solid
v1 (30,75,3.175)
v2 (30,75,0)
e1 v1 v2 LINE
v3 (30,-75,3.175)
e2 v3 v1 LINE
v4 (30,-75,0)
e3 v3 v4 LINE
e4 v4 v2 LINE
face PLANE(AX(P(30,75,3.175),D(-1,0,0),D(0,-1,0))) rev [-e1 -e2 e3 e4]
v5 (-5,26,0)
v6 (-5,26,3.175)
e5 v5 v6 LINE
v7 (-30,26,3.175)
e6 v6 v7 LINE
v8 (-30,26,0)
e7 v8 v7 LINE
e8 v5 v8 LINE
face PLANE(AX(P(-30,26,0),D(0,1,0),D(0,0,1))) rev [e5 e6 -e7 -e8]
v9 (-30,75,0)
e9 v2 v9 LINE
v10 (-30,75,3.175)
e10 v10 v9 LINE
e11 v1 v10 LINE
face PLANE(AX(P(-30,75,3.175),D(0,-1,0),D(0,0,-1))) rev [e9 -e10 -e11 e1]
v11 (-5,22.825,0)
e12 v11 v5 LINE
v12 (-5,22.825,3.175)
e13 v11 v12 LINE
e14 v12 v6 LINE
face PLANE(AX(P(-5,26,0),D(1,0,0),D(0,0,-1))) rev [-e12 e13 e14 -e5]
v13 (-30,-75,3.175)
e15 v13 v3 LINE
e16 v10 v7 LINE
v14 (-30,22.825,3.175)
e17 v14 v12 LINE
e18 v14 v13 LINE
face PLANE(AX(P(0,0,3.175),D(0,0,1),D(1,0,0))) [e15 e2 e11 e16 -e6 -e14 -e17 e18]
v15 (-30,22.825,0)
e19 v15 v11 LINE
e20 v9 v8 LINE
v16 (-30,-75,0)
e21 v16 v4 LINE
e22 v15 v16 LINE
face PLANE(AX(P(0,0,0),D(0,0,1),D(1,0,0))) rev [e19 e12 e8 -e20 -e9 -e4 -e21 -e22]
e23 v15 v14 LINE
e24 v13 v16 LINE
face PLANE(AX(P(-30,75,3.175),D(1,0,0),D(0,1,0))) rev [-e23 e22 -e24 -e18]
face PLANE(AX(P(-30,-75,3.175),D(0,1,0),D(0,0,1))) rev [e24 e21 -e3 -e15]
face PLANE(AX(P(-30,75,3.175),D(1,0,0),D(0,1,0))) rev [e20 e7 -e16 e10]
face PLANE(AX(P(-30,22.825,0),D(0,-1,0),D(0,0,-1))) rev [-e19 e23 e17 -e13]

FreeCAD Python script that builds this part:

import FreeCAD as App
import Part
import Sketcher

V = App.Vector


def add_polygon(sketch, points):
    """Adds a closed chain of lines whose ends are joined by coincident constraints."""
    first, n = sketch.GeometryCount, len(points)
    for a, b in zip(points, points[1:] + points[:1]):
        sketch.addGeometry(Part.LineSegment(App.Vector(*a, 0), App.Vector(*b, 0)), False)
    for i in range(n):
        sketch.addConstraint(Sketcher.Constraint("Coincident", first + i, 2, first + (i + 1) % n, 1))

doc = App.newDocument("Part")
body = doc.addObject("PartDesign::Body", "Body")

sketch1 = body.newObject("Sketcher::SketchObject", "Sketch")
sketch1.AttachmentSupport = (doc.getObject("XY_Plane"), [""])
sketch1.MapMode = "FlatFace"
add_polygon(sketch1, [(-30, 75), (-30, -75), (30, -75), (30, 75)])
sketch1.addConstraint([
    Sketcher.Constraint("Vertical", 0),
    Sketcher.Constraint("Horizontal", 1),
    Sketcher.Constraint("Vertical", 2),
    Sketcher.Constraint("Horizontal", 3),
    Sketcher.Constraint("Symmetric", 0, 2, 2, 2, -1, 1),
    Sketcher.Constraint("DistanceX", 1, 1, 1, 2, 60.0),
    Sketcher.Constraint("DistanceY", 0, 2, 0, 1, 150.0),
])
pad1 = body.newObject("PartDesign::Pad", "Pad")
pad1.Profile = sketch1
pad1.Length = 3.175

sketch2 = body.newObject("Sketcher::SketchObject", "Sketch001")
sketch2.AttachmentSupport = (doc.getObject("XY_Plane"), [""])
sketch2.MapMode = "FlatFace"
sketch2.AttachmentOffset = App.Placement(V(0, 0, 3.175), App.Rotation())
add_polygon(sketch2, [(-30, 26), (-30, 22.8), (-5, 22.8), (-5, 26)])
sketch2.addConstraint([
    Sketcher.Constraint("Vertical", 0),
    Sketcher.Constraint("Horizontal", 1),
    Sketcher.Constraint("Vertical", 2),
    Sketcher.Constraint("Horizontal", 3),
    Sketcher.Constraint("DistanceX", 1, 1, 1, 2, 25.0),
    Sketcher.Constraint("DistanceX", 0, 2, -1, 1, 30.0),
    Sketcher.Constraint("DistanceY", -1, 1, 2, 2, 26.0),
    Sketcher.Constraint("DistanceY", 0, 2, 0, 1, 3.175),
])
pocket1 = body.newObject("PartDesign::Pocket", "Pocket")
pocket1.Profile = sketch2
pocket1.Length = 3.175

doc.recompute()
